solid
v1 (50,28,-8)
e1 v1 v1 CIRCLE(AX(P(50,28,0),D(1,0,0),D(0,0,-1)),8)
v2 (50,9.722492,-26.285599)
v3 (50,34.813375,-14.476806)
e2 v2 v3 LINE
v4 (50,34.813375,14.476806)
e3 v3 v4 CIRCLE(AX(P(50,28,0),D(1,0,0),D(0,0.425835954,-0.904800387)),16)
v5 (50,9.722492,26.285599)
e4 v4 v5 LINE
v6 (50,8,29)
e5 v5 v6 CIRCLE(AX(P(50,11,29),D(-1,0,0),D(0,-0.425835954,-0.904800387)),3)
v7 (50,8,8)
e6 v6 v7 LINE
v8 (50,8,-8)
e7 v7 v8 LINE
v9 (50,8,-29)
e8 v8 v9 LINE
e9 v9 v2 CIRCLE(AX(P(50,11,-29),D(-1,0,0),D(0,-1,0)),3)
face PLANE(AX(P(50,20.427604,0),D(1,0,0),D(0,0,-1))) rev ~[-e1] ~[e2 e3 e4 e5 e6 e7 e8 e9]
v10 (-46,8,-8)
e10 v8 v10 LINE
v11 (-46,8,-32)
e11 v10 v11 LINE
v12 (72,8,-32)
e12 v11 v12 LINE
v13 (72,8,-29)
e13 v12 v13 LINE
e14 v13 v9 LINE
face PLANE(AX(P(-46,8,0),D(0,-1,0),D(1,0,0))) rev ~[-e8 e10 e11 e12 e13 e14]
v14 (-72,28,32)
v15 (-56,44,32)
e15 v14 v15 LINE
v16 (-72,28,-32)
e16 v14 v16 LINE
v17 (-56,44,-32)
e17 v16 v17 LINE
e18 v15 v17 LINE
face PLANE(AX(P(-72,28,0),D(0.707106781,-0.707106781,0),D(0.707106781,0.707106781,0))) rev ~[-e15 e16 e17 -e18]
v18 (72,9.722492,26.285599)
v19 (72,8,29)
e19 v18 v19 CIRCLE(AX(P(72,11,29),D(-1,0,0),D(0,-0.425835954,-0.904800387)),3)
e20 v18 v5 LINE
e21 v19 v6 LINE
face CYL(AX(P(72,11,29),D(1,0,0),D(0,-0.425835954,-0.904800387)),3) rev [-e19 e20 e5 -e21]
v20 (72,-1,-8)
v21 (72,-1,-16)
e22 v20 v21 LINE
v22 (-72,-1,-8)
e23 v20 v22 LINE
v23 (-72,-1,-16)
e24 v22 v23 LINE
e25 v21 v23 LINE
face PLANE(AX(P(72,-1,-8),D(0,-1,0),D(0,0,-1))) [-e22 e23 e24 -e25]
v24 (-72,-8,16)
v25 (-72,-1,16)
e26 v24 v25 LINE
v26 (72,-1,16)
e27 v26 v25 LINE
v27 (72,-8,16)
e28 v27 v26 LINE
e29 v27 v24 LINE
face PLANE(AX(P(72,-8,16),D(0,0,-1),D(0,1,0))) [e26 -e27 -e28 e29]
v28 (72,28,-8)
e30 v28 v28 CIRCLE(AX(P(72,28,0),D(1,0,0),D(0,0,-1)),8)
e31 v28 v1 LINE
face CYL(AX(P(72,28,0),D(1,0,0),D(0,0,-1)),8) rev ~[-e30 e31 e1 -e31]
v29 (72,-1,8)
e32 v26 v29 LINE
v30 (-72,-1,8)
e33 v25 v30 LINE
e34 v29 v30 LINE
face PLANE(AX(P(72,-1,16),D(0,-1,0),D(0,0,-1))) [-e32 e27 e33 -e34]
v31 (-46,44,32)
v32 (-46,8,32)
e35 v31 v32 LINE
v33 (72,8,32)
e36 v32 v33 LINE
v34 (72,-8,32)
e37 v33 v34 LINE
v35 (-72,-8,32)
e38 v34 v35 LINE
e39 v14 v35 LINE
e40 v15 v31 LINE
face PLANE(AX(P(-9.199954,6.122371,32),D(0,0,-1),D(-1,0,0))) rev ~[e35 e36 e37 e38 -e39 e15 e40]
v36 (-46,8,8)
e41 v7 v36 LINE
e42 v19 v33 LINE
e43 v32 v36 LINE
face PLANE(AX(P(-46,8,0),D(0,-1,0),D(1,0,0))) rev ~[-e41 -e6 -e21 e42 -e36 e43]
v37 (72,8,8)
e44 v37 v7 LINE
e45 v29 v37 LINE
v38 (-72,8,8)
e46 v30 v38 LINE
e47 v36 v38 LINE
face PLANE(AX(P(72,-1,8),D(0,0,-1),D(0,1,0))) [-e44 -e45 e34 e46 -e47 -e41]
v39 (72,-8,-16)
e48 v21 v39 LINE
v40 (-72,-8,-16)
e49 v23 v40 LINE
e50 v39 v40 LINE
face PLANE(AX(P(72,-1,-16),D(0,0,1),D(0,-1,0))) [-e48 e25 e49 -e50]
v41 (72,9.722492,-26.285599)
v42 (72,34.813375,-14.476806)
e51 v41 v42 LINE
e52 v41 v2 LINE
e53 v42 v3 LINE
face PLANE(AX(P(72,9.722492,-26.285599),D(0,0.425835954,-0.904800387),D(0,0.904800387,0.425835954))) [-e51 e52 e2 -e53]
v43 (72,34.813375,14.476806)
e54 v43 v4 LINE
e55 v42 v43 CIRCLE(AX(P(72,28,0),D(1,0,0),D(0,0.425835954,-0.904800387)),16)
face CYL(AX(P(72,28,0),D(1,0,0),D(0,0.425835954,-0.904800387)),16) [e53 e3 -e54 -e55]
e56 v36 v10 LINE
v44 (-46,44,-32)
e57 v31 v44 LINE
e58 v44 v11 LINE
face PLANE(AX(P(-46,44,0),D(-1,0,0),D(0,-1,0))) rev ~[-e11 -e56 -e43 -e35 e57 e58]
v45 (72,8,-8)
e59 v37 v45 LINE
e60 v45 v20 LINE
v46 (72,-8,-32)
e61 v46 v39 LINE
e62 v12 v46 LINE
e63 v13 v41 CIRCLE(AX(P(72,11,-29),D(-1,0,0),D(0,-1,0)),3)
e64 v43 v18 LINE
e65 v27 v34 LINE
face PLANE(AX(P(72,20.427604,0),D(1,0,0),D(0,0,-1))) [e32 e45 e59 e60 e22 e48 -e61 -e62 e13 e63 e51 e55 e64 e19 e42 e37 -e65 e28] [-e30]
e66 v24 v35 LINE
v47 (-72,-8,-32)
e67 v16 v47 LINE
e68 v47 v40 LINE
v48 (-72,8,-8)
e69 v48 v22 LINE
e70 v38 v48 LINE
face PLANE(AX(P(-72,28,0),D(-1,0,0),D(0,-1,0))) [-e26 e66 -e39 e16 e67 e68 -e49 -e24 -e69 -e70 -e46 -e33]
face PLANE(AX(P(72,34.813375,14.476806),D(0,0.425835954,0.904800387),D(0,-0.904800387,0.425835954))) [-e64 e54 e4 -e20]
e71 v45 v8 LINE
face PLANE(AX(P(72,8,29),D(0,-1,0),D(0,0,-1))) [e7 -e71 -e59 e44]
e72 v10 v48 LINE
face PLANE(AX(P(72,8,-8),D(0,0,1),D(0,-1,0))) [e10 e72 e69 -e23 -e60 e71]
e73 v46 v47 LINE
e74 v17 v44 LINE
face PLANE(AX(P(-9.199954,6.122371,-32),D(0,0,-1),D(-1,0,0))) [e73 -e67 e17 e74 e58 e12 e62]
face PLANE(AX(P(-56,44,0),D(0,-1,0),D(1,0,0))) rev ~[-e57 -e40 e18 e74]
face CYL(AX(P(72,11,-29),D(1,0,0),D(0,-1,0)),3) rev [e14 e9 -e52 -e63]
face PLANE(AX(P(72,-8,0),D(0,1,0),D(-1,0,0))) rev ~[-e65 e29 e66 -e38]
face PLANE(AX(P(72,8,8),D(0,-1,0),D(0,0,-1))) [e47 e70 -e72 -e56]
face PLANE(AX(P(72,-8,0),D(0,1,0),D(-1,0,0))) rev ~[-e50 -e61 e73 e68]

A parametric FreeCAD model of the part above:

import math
import FreeCAD as App
import Part
import Sketcher
from FreeCAD import Vector


def add_polygon(sketch, points):
    """Adds a closed chain of lines whose ends are joined by coincident constraints."""
    first, n = sketch.GeometryCount, len(points)
    for a, b in zip(points, points[1:] + points[:1]):
        sketch.addGeometry(Part.LineSegment(App.Vector(*a, 0), App.Vector(*b, 0)), False)
    for i in range(n):
        sketch.addConstraint(Sketcher.Constraint("Coincident", first + i, 2, first + (i + 1) % n, 1))

doc = App.newDocument("Part")
params = doc.addObject("Spreadsheet::Sheet", "Params")
for row, (alias, value) in enumerate([
    ("sketch1_width", "144 mm"),
    ("sketch1_width2", "118 mm"),
    ("sketch1_width3", "10 mm"),
    ("sketch1_height", "36 mm"),
    ("sketch1_height2", "16 mm"),
    ("pad1_length", "64 mm"),
    ("sketch2_width", "7 mm"),
    ("sketch2_width2", "9 mm"),
    ("sketch2_height", "32 mm"),
    ("sketch2_height2", "8 mm"),
    ("sketch3_diameter", "16 mm"),
    ("sketch3_radius", "3 mm"),
    ("sketch3_radius2", "16 mm"),
    ("sketch3_height", "58 mm"),
    ("pad2_length", "22 mm"),
], start=1):
    params.set(f"A{row}", alias)
    params.set(f"B{row}", "=" + value)
    params.setAlias(f"B{row}", alias)

body = doc.addObject("PartDesign::Body", "Body")

# Sketch on XY plane
sketch1 = body.newObject("Sketcher::SketchObject", "Sketch")
sketch1.AttachmentSupport = (doc.getObject("XY_Plane"), [""])
sketch1.MapMode = "FlatFace"
add_polygon(sketch1, [(-72, 28), (-72, -8), (72, -8), (72, 8), (-46, 8), (-46, 44), (-56, 44)])  # lines 0-6
sketch1.addConstraint([
    Sketcher.Constraint("Vertical", 0),
    Sketcher.Constraint("Horizontal", 1),
    Sketcher.Constraint("Vertical", 2),
    Sketcher.Constraint("Horizontal", 3),
    Sketcher.Constraint("Vertical", 4),
    Sketcher.Constraint("Horizontal", 5),
    Sketcher.Constraint("Symmetric", 0, 2, 2, 2, -1, 1),
    Sketcher.Constraint("Equal", 0, 4),
    Sketcher.Constraint("DistanceX", 1, 1, 1, 2, 144.0),
    Sketcher.Constraint("DistanceX", 3, 2, 3, 1, 118.0),
    Sketcher.Constraint("DistanceX", 5, 2, 5, 1, 10.0),
    Sketcher.Constraint("DistanceY", 0, 2, 0, 1, 36.0),
    Sketcher.Constraint("DistanceY", 2, 1, 2, 2, 16.0),
])
sketch1.setExpression("Constraints[15]", "Params.sketch1_width")
sketch1.setExpression("Constraints[16]", "Params.sketch1_width2")
sketch1.setExpression("Constraints[17]", "Params.sketch1_width3")
sketch1.setExpression("Constraints[18]", "Params.sketch1_height")
sketch1.setExpression("Constraints[19]", "Params.sketch1_height2")
pad1 = body.newObject("PartDesign::Pad", "Pad")
pad1.Profile = sketch1
pad1.setExpression("Length", "Params.pad1_length")
pad1.Midplane = True

# Sketch on YZ plane
sketch2 = body.newObject("Sketcher::SketchObject", "Sketch001")
sketch2.AttachmentSupport = (doc.getObject("YZ_Plane"), [""])
sketch2.MapMode = "FlatFace"
sketch2.AttachmentOffset = App.Placement(Vector(0, 0, 72), App.Rotation())
add_polygon(sketch2, [(-1, 16), (-8, 16), (-8, -16), (-1, -16), (-1, -8), (8, -8), (8, 8), (-1, 8)])  # lines 0-7
sketch2.addConstraint([
    Sketcher.Constraint("Horizontal", 0),
    Sketcher.Constraint("Vertical", 1),
    Sketcher.Constraint("Horizontal", 2),
    Sketcher.Constraint("Vertical", 3),
    Sketcher.Constraint("Horizontal", 4),
    Sketcher.Constraint("Vertical", 5),
    Sketcher.Constraint("Horizontal", 6),
    Sketcher.Constraint("Vertical", 7),
    Sketcher.Constraint("Symmetric", 3, 2, 6, 2, -1),
    Sketcher.Constraint("Equal", 3, 7),
    Sketcher.Constraint("DistanceX", 0, 2, 0, 1, 7.0),
    Sketcher.Constraint("DistanceX", 4, 1, 4, 2, 9.0),
    Sketcher.Constraint("DistanceY", 1, 2, 1, 1, 32.0),
    Sketcher.Constraint("DistanceY", 3, 1, 3, 2, 8.0),
    Sketcher.Constraint("DistanceX", 0, 2, -1, 1, 8.0),
])
sketch2.setExpression("Constraints[18]", "Params.sketch2_width")
sketch2.setExpression("Constraints[19]", "Params.sketch2_width2")
sketch2.setExpression("Constraints[20]", "Params.sketch2_height")
sketch2.setExpression("Constraints[21]", "Params.sketch2_height2")
pocket1 = body.newObject("PartDesign::Pocket", "Pocket")
pocket1.Profile = sketch2
pocket1.Type = "UpToFirst"

# Sketch on YZ plane
sketch3 = body.newObject("Sketcher::SketchObject", "Sketch002")
sketch3.AttachmentSupport = (doc.getObject("YZ_Plane"), [""])
sketch3.MapMode = "FlatFace"
sketch3.AttachmentOffset = App.Placement(Vector(0, 0, 72), App.Rotation())
sketch3.addGeometry([
    Part.LineSegment(Vector(34.8, 14.5, 0), Vector(9.7, 26.3, 0)),  # 0
    Part.ArcOfCircle(Part.Circle(Vector(11, 29, 0), Vector(0, 0, 1), 3), math.radians(-180), math.radians(-115)),  # 1
    Part.LineSegment(Vector(8, 29, 0), Vector(8, -29, 0)),  # 2
    Part.ArcOfCircle(Part.Circle(Vector(11, -29, 0), Vector(0, 0, 1), 3), math.radians(115), math.radians(180)),  # 3
    Part.LineSegment(Vector(9.7, -26.3, 0), Vector(34.8, -14.5, 0)),  # 4
    Part.ArcOfCircle(Part.Circle(Vector(28, 0, 0), Vector(0, 0, 1), 16), math.radians(-65), math.radians(65)),  # 5
    Part.Circle(Vector(28, 0, 0), Vector(0, 0, 1), 8),  # 6
], False)
sketch3.addConstraint([
    Sketcher.Constraint("Tangent", 0, 2, 1, 2),
    Sketcher.Constraint("Tangent", 1, 1, 2, 1),
    Sketcher.Constraint("Tangent", 2, 2, 3, 2),
    Sketcher.Constraint("Tangent", 3, 1, 4, 1),
    Sketcher.Constraint("Tangent", 4, 2, 5, 1),
    Sketcher.Constraint("Tangent", 5, 2, 0, 1),
    Sketcher.Constraint("Vertical", 2),
    Sketcher.Constraint("Coincident", 6, 3, 5, 3),
    Sketcher.Constraint("Equal", 1, 3),
    Sketcher.Constraint("Symmetric", 0, 2, 3, 1, -1),
    Sketcher.Constraint("Diameter", 6, 16.0),
    Sketcher.Constraint("Radius", 1, 3.0),
    Sketcher.Constraint("Radius", 5, 16.0),
    Sketcher.Constraint("DistanceY", 2, 2, 2, 1, 58.0),
    Sketcher.Constraint("DistanceX", -1, 1, 1, 3, 11.0),
    Sketcher.Constraint("DistanceX", -1, 1, 5, 3, 28.0),
])
sketch3.setExpression("Constraints[10]", "Params.sketch3_diameter")
sketch3.setExpression("Constraints[11]", "Params.sketch3_radius")
sketch3.setExpression("Constraints[12]", "Params.sketch3_radius2")
sketch3.setExpression("Constraints[13]", "Params.sketch3_height")
pad2 = body.newObject("PartDesign::Pad", "Pad001")
pad2.Profile = sketch3
pad2.setExpression("Length", "Params.pad2_length")
pad2.Reversed = True

doc.recompute()
